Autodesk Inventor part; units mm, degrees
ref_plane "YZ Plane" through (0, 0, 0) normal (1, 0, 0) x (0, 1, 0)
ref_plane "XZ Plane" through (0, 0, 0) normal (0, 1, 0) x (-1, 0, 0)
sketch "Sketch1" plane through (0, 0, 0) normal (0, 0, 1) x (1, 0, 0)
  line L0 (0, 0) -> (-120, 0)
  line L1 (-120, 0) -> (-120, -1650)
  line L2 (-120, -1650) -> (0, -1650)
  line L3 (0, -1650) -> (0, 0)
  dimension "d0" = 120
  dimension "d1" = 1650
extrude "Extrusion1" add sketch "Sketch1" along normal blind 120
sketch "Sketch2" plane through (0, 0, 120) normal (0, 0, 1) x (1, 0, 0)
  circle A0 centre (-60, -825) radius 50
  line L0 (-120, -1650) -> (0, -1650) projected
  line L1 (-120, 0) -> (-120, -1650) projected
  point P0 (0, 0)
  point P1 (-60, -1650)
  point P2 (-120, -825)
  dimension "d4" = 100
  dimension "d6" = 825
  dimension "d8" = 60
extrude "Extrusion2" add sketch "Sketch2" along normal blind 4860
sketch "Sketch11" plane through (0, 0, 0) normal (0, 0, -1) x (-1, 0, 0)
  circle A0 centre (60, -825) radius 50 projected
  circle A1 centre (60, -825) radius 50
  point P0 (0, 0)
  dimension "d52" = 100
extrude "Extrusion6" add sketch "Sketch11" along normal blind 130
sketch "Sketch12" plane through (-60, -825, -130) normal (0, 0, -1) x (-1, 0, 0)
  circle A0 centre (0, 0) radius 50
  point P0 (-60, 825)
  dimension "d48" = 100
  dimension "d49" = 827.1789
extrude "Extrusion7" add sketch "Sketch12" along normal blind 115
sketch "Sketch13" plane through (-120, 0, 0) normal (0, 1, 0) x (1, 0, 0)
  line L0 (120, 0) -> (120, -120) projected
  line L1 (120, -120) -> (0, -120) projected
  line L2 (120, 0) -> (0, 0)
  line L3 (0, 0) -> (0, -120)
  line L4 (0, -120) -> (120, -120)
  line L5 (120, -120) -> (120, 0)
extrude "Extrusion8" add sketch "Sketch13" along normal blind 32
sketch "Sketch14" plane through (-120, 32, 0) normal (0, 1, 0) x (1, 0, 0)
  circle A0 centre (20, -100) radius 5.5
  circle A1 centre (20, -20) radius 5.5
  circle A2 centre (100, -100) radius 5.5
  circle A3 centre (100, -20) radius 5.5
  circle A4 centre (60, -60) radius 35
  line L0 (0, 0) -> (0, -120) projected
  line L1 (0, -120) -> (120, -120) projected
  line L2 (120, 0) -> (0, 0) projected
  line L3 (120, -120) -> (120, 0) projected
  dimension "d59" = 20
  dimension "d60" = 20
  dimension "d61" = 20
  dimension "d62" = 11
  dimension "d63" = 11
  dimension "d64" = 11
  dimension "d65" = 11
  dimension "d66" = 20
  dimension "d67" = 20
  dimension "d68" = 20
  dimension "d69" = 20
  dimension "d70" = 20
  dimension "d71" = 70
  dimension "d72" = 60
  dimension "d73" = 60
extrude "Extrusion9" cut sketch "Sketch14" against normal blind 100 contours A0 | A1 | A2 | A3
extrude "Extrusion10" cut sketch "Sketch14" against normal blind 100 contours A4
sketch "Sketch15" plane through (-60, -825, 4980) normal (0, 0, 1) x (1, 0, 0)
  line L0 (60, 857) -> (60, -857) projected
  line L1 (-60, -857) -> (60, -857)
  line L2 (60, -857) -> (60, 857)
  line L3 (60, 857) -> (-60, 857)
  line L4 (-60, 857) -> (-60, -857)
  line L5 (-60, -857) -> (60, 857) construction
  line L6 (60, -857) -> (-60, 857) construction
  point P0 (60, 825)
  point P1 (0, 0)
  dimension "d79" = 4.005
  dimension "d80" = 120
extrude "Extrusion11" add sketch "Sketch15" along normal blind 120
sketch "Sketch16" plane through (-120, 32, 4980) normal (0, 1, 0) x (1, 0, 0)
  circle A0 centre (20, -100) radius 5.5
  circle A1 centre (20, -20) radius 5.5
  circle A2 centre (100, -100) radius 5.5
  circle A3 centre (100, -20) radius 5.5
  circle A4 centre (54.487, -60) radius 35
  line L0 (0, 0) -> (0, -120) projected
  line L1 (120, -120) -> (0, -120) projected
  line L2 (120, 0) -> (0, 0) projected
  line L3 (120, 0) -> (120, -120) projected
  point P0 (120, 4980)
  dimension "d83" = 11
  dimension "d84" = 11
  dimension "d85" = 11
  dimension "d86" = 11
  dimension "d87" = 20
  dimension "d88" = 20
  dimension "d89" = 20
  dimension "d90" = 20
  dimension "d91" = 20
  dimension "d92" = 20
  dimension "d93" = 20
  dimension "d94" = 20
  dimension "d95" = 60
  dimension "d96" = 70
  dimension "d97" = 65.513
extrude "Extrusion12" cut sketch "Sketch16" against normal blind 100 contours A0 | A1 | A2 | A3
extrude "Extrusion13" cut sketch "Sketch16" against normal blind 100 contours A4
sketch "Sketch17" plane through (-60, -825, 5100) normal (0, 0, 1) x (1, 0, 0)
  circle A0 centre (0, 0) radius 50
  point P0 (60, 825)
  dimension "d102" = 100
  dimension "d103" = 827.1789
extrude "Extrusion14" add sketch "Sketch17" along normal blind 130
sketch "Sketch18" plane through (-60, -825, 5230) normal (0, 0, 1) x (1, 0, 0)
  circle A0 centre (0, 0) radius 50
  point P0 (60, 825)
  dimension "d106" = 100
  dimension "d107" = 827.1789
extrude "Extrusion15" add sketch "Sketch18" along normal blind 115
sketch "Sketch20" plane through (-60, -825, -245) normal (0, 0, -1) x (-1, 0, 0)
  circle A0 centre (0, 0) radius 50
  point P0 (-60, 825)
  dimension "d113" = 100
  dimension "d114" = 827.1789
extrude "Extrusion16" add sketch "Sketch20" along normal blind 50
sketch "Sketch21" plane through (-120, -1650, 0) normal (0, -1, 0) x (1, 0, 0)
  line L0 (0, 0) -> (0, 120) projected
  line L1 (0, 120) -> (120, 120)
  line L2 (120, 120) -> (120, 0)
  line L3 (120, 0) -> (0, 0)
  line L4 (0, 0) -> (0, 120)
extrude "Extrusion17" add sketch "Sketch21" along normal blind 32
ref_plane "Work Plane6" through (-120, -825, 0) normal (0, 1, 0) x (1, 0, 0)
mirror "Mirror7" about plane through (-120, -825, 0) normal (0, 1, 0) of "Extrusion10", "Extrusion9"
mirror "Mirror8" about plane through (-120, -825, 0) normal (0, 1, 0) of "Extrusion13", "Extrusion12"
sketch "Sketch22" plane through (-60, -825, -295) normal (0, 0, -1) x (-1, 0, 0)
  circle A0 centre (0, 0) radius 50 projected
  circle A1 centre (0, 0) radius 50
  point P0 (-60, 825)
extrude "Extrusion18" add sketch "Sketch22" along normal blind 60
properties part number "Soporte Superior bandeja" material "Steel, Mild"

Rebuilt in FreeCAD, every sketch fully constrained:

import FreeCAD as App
import Part
import Sketcher
Q = App.Units.Quantity

doc = App.newDocument("Part")
body = doc.addObject("PartDesign::Body", "Body")

# Sketch on XY plane
sketch1 = doc.addObject("Sketcher::SketchObject", "Sketch")
body.addObject(sketch1)
sketch1.AttachmentSupport = (doc.XY_Plane, [""])
sketch1.MapMode = "FlatFace"
sketch1.addGeometry([
    Part.LineSegment(App.Vector(0, -1650, 0), App.Vector(0, 0, 0)),
    Part.LineSegment(App.Vector(0, 0, 0), App.Vector(-120, 0, 0)),
    Part.LineSegment(App.Vector(-120, 0, 0), App.Vector(-120, -1650, 0)),
    Part.LineSegment(App.Vector(-120, -1650, 0), App.Vector(0, -1650, 0)),
], False)
sketch1.addConstraint([
    Sketcher.Constraint("Coincident", 0, 2, 1, 1),
    Sketcher.Constraint("Coincident", 1, 2, 2, 1),
    Sketcher.Constraint("Coincident", 2, 2, 3, 1),
    Sketcher.Constraint("Coincident", 3, 2, 0, 1),
    Sketcher.Constraint("Vertical", 0),
    Sketcher.Constraint("Horizontal", 1),
    Sketcher.Constraint("Vertical", 2),
    Sketcher.Constraint("Horizontal", 3),
    Sketcher.Constraint("Coincident", 0, 2, -1, 1),
    Sketcher.Constraint("DistanceX", 1, 2, 1, 1, Q("120 mm")),
    Sketcher.Constraint("DistanceY", 0, 1, 0, 2, Q("1650 mm")),
])
pad1 = doc.addObject("PartDesign::Pad", "Pad")
body.addObject(pad1)
pad1.Profile = sketch1
pad1.Length = 120

# Sketch on XY plane
sketch2 = doc.addObject("Sketcher::SketchObject", "Sketch001")
body.addObject(sketch2)
sketch2.AttachmentSupport = (doc.XY_Plane, [""])
sketch2.MapMode = "FlatFace"
sketch2.AttachmentOffset = App.Placement(App.Vector(0, 0, 120), App.Rotation())
sketch2.addGeometry(Part.Circle(App.Vector(-60, -825, 0), App.Vector(0, 0, 1), 50), False)
sketch2.addConstraint([
    Sketcher.Constraint("Diameter", 0, Q("100 mm")),
    Sketcher.Constraint("DistanceX", 0, 3, -1, 1, Q("60 mm")),
    Sketcher.Constraint("DistanceY", 0, 3, -1, 1, Q("825 mm")),
])
pad2 = doc.addObject("PartDesign::Pad", "Pad001")
body.addObject(pad2)
pad2.Profile = sketch2
pad2.Length = 4860

# Sketch on XY plane
sketch3 = doc.addObject("Sketcher::SketchObject", "Sketch002")
body.addObject(sketch3)
sketch3.AttachmentSupport = (doc.XY_Plane, [""])
sketch3.MapMode = "FlatFace"
sketch3.addGeometry(Part.Circle(App.Vector(-60, -825, 0), App.Vector(0, 0, 1), 50), False)
sketch3.addConstraint([
    Sketcher.Constraint("Diameter", 0, Q("100 mm")),
    Sketcher.Constraint("DistanceX", 0, 3, -1, 1, Q("60 mm")),
    Sketcher.Constraint("DistanceY", 0, 3, -1, 1, Q("825 mm")),
])
pad3 = doc.addObject("PartDesign::Pad", "Pad002")
body.addObject(pad3)
pad3.Profile = sketch3
pad3.Length = 130
pad3.Reversed = True

# Sketch on XY plane
sketch4 = doc.addObject("Sketcher::SketchObject", "Sketch003")
body.addObject(sketch4)
sketch4.AttachmentSupport = (doc.XY_Plane, [""])
sketch4.MapMode = "FlatFace"
sketch4.AttachmentOffset = App.Placement(App.Vector(0, 0, -130), App.Rotation())
sketch4.addGeometry(Part.Circle(App.Vector(-60, -825, 0), App.Vector(0, 0, 1), 50), False)
sketch4.addConstraint([
    Sketcher.Constraint("Diameter", 0, Q("100 mm")),
    Sketcher.Constraint("DistanceX", 0, 3, -1, 1, Q("60 mm")),
    Sketcher.Constraint("DistanceY", 0, 3, -1, 1, Q("825 mm")),
])
pad4 = doc.addObject("PartDesign::Pad", "Pad003")
body.addObject(pad4)
pad4.Profile = sketch4
pad4.Length = 115
pad4.Reversed = True

# Sketch on XZ plane
sketch5 = doc.addObject("Sketcher::SketchObject", "Sketch004")
body.addObject(sketch5)
sketch5.AttachmentSupport = (doc.XZ_Plane, [""])
sketch5.MapMode = "FlatFace"
sketch5.addGeometry([
    Part.LineSegment(App.Vector(0, 120, 0), App.Vector(0, 0, 0)),
    Part.LineSegment(App.Vector(0, 0, 0), App.Vector(-120, 0, 0)),
    Part.LineSegment(App.Vector(-120, 0, 0), App.Vector(-120, 120, 0)),
    Part.LineSegment(App.Vector(-120, 120, 0), App.Vector(0, 120, 0)),
], False)
sketch5.addConstraint([
    Sketcher.Constraint("Coincident", 0, 2, 1, 1),
    Sketcher.Constraint("Coincident", 1, 2, 2, 1),
    Sketcher.Constraint("Coincident", 2, 2, 3, 1),
    Sketcher.Constraint("Coincident", 3, 2, 0, 1),
    Sketcher.Constraint("Vertical", 0),
    Sketcher.Constraint("Horizontal", 1),
    Sketcher.Constraint("Vertical", 2),
    Sketcher.Constraint("Horizontal", 3),
    Sketcher.Constraint("Coincident", 0, 2, -1, 1),
    Sketcher.Constraint("Equal", 3, 0),
    Sketcher.Constraint("DistanceX", 1, 2, 1, 1, Q("120 mm")),
])
pad5 = doc.addObject("PartDesign::Pad", "Pad004")
body.addObject(pad5)
pad5.Profile = sketch5
pad5.Length = 32
pad5.Reversed = True

# Sketch on XZ plane
sketch6 = doc.addObject("Sketcher::SketchObject", "Sketch005")
body.addObject(sketch6)
sketch6.AttachmentSupport = (doc.XZ_Plane, [""])
sketch6.MapMode = "FlatFace"
sketch6.AttachmentOffset = App.Placement(App.Vector(0, 0, -32), App.Rotation())
sketch6.addGeometry([
    Part.Circle(App.Vector(-100, 100, 0), App.Vector(0, 0, 1), 6),
    Part.Circle(App.Vector(-100, 20, 0), App.Vector(0, 0, 1), 6),
    Part.Circle(App.Vector(-20, 100, 0), App.Vector(0, 0, 1), 6),
    Part.Circle(App.Vector(-20, 20, 0), App.Vector(0, 0, 1), 6),
], False)
sketch6.addConstraint([
    Sketcher.Constraint("Equal", 0, 1),
    Sketcher.Constraint("Equal", 1, 2),
    Sketcher.Constraint("Equal", 2, 3),
    Sketcher.Constraint("Horizontal", 0, 3, 2, 3),
    Sketcher.Constraint("Horizontal", 1, 3, 3, 3),
    Sketcher.Constraint("Vertical", 0, 3, 1, 3),
    Sketcher.Constraint("Vertical", 2, 3, 3, 3),
    Sketcher.Constraint("Diameter", 0, Q("11 mm")),
    Sketcher.Constraint("DistanceY", -1, 1, 1, 3, Q("20 mm")),
    Sketcher.Constraint("DistanceX", 2, 3, -1, 1, Q("20 mm")),
    Sketcher.Constraint("DistanceX", 0, 3, -1, 1, Q("100 mm")),
    Sketcher.Constraint("DistanceY", -1, 1, 0, 3, Q("100 mm")),
])
pocket1 = doc.addObject("PartDesign::Pocket", "Pocket")
body.addObject(pocket1)
pocket1.Profile = sketch6
pocket1.Length = 100
pocket1.Reversed = True

# Sketch on XZ plane
sketch7 = doc.addObject("Sketcher::SketchObject", "Sketch006")
body.addObject(sketch7)
sketch7.AttachmentSupport = (doc.XZ_Plane, [""])
sketch7.MapMode = "FlatFace"
sketch7.AttachmentOffset = App.Placement(App.Vector(0, 0, -32), App.Rotation())
sketch7.addGeometry(Part.Circle(App.Vector(-60, 60, 0), App.Vector(0, 0, 1), 35), False)
sketch7.addConstraint([
    Sketcher.Constraint("Diameter", 0, Q("70 mm")),
    Sketcher.Constraint("DistanceX", 0, 3, -1, 1, Q("60 mm")),
    Sketcher.Constraint("DistanceY", -1, 1, 0, 3, Q("60 mm")),
])
pocket2 = doc.addObject("PartDesign::Pocket", "Pocket001")
body.addObject(pocket2)
pocket2.Profile = sketch7
pocket2.Length = 100
pocket2.Reversed = True

# Sketch on XY plane
sketch8 = doc.addObject("Sketcher::SketchObject", "Sketch007")
body.addObject(sketch8)
sketch8.AttachmentSupport = (doc.XY_Plane, [""])
sketch8.MapMode = "FlatFace"
sketch8.AttachmentOffset = App.Placement(App.Vector(0, 0, 4980), App.Rotation())
sketch8.addGeometry([
    Part.LineSegment(App.Vector(0, -1682, 0), App.Vector(0, 32, 0)),
    Part.LineSegment(App.Vector(0, 32, 0), App.Vector(-120, 32, 0)),
    Part.LineSegment(App.Vector(-120, 32, 0), App.Vector(-120, -1682, 0)),
    Part.LineSegment(App.Vector(-120, -1682, 0), App.Vector(0, -1682, 0)),
], False)
sketch8.addConstraint([
    Sketcher.Constraint("Coincident", 0, 2, 1, 1),
    Sketcher.Constraint("Coincident", 1, 2, 2, 1),
    Sketcher.Constraint("Coincident", 2, 2, 3, 1),
    Sketcher.Constraint("Coincident", 3, 2, 0, 1),
    Sketcher.Constraint("Vertical", 0),
    Sketcher.Constraint("Horizontal", 1),
    Sketcher.Constraint("Vertical", 2),
    Sketcher.Constraint("Horizontal", 3),
    Sketcher.Constraint("PointOnObject", 0, 2, -2),
    Sketcher.Constraint("DistanceX", 1, 2, 1, 1, Q("120 mm")),
    Sketcher.Constraint("DistanceY", 0, 1, 0, 2, Q("1714 mm")),
    Sketcher.Constraint("DistanceY", -1, 1, 0, 2, Q("32 mm")),
])
pad6 = doc.addObject("PartDesign::Pad", "Pad005")
body.addObject(pad6)
pad6.Profile = sketch8
pad6.Length = 120

# Sketch on XZ plane
sketch9 = doc.addObject("Sketcher::SketchObject", "Sketch008")
body.addObject(sketch9)
sketch9.AttachmentSupport = (doc.XZ_Plane, [""])
sketch9.MapMode = "FlatFace"
sketch9.AttachmentOffset = App.Placement(App.Vector(0, 0, -32), App.Rotation())
sketch9.addGeometry([
    Part.Circle(App.Vector(-100, 5080, 0), App.Vector(0, 0, 1), 6),
    Part.Circle(App.Vector(-100, 5000, 0), App.Vector(0, 0, 1), 6),
    Part.Circle(App.Vector(-20, 5080, 0), App.Vector(0, 0, 1), 6),
    Part.Circle(App.Vector(-20, 5000, 0), App.Vector(0, 0, 1), 6),
], False)
sketch9.addConstraint([
    Sketcher.Constraint("Equal", 0, 1),
    Sketcher.Constraint("Equal", 1, 2),
    Sketcher.Constraint("Equal", 2, 3),
    Sketcher.Constraint("Horizontal", 0, 3, 2, 3),
    Sketcher.Constraint("Horizontal", 1, 3, 3, 3),
    Sketcher.Constraint("Vertical", 0, 3, 1, 3),
    Sketcher.Constraint("Vertical", 2, 3, 3, 3),
    Sketcher.Constraint("Diameter", 0, Q("11 mm")),
    Sketcher.Constraint("DistanceX", 2, 3, -1, 1, Q("20 mm")),
    Sketcher.Constraint("DistanceX", 0, 3, -1, 1, Q("100 mm")),
    Sketcher.Constraint("DistanceY", -1, 1, 0, 3, Q("5080 mm")),
    Sketcher.Constraint("DistanceY", -1, 1, 1, 3, Q("5000 mm")),
])
pocket3 = doc.addObject("PartDesign::Pocket", "Pocket002")
body.addObject(pocket3)
pocket3.Profile = sketch9
pocket3.Length = 100
pocket3.Reversed = True

# Sketch on XZ plane
sketch10 = doc.addObject("Sketcher::SketchObject", "Sketch009")
body.addObject(sketch10)
sketch10.AttachmentSupport = (doc.XZ_Plane, [""])
sketch10.MapMode = "FlatFace"
sketch10.AttachmentOffset = App.Placement(App.Vector(0, 0, -32), App.Rotation())
sketch10.addGeometry(Part.Circle(App.Vector(-66, 5040, 0), App.Vector(0, 0, 1), 35), False)
sketch10.addConstraint([
    Sketcher.Constraint("Diameter", 0, Q("70 mm")),
    Sketcher.Constraint("DistanceX", 0, 3, -1, 1, Q("65.513 mm")),
    Sketcher.Constraint("DistanceY", -1, 1, 0, 3, Q("5040 mm")),
])
pocket4 = doc.addObject("PartDesign::Pocket", "Pocket003")
body.addObject(pocket4)
pocket4.Profile = sketch10
pocket4.Length = 100
pocket4.Reversed = True

# Sketch on XY plane
sketch11 = doc.addObject("Sketcher::SketchObject", "Sketch010")
body.addObject(sketch11)
sketch11.AttachmentSupport = (doc.XY_Plane, [""])
sketch11.MapMode = "FlatFace"
sketch11.AttachmentOffset = App.Placement(App.Vector(0, 0, 5100), App.Rotation())
sketch11.addGeometry(Part.Circle(App.Vector(-60, -825, 0), App.Vector(0, 0, 1), 50), False)
sketch11.addConstraint([
    Sketcher.Constraint("Diameter", 0, Q("100 mm")),
    Sketcher.Constraint("DistanceX", 0, 3, -1, 1, Q("60 mm")),
    Sketcher.Constraint("DistanceY", 0, 3, -1, 1, Q("825 mm")),
])
pad7 = doc.addObject("PartDesign::Pad", "Pad006")
body.addObject(pad7)
pad7.Profile = sketch11
pad7.Length = 130

# Sketch on XY plane
sketch12 = doc.addObject("Sketcher::SketchObject", "Sketch011")
body.addObject(sketch12)
sketch12.AttachmentSupport = (doc.XY_Plane, [""])
sketch12.MapMode = "FlatFace"
sketch12.AttachmentOffset = App.Placement(App.Vector(0, 0, 5230), App.Rotation())
sketch12.addGeometry(Part.Circle(App.Vector(-60, -825, 0), App.Vector(0, 0, 1), 50), False)
sketch12.addConstraint([
    Sketcher.Constraint("Diameter", 0, Q("100 mm")),
    Sketcher.Constraint("DistanceX", 0, 3, -1, 1, Q("60 mm")),
    Sketcher.Constraint("DistanceY", 0, 3, -1, 1, Q("825 mm")),
])
pad8 = doc.addObject("PartDesign::Pad", "Pad007")
body.addObject(pad8)
pad8.Profile = sketch12
pad8.Length = 115

# Sketch on XY plane
sketch13 = doc.addObject("Sketcher::SketchObject", "Sketch012")
body.addObject(sketch13)
sketch13.AttachmentSupport = (doc.XY_Plane, [""])
sketch13.MapMode = "FlatFace"
sketch13.AttachmentOffset = App.Placement(App.Vector(0, 0, -245), App.Rotation())
sketch13.addGeometry(Part.Circle(App.Vector(-60, -825, 0), App.Vector(0, 0, 1), 50), False)
sketch13.addConstraint([
    Sketcher.Constraint("Diameter", 0, Q("100 mm")),
    Sketcher.Constraint("DistanceX", 0, 3, -1, 1, Q("60 mm")),
    Sketcher.Constraint("DistanceY", 0, 3, -1, 1, Q("825 mm")),
])
pad9 = doc.addObject("PartDesign::Pad", "Pad008")
body.addObject(pad9)
pad9.Profile = sketch13
pad9.Length = 50
pad9.Reversed = True

# Sketch on XZ plane
sketch14 = doc.addObject("Sketcher::SketchObject", "Sketch013")
body.addObject(sketch14)
sketch14.AttachmentSupport = (doc.XZ_Plane, [""])
sketch14.MapMode = "FlatFace"
sketch14.AttachmentOffset = App.Placement(App.Vector(0, 0, 1650), App.Rotation())
sketch14.addGeometry([
    Part.LineSegment(App.Vector(-120, 120, 0), App.Vector(-120, 0, 0)),
    Part.LineSegment(App.Vector(-120, 0, 0), App.Vector(0, 0, 0)),
    Part.LineSegment(App.Vector(0, 0, 0), App.Vector(0, 120, 0)),
    Part.LineSegment(App.Vector(0, 120, 0), App.Vector(-120, 120, 0)),
], False)
sketch14.addConstraint([
    Sketcher.Constraint("Coincident", 0, 2, 1, 1),
    Sketcher.Constraint("Coincident", 1, 2, 2, 1),
    Sketcher.Constraint("Coincident", 2, 2, 3, 1),
    Sketcher.Constraint("Coincident", 3, 2, 0, 1),
    Sketcher.Constraint("Vertical", 0),
    Sketcher.Constraint("Horizontal", 1),
    Sketcher.Constraint("Vertical", 2),
    Sketcher.Constraint("Horizontal", 3),
    Sketcher.Constraint("Coincident", 1, 2, -1, 1),
    Sketcher.Constraint("Equal", 3, 0),
    Sketcher.Constraint("DistanceX", 1, 1, 1, 2, Q("120 mm")),
])
pad10 = doc.addObject("PartDesign::Pad", "Pad009")
body.addObject(pad10)
pad10.Profile = sketch14
pad10.Length = 32
doc.recompute()

datumplane = doc.addObject("PartDesign::Plane", "DatumPlane")
body.addObject(datumplane)
datumplane.AttachmentSupport = (doc.XZ_Plane, [""])
datumplane.MapMode = "FlatFace"
datumplane.AttachmentOffset = App.Placement(App.Vector(0, 0, 825), App.Rotation())
mirrored = doc.addObject("PartDesign::Mirrored", "Mirrored")
body.addObject(mirrored)
mirrored.Originals = [pocket2, pocket1]
mirrored.MirrorPlane = (datumplane, [""])
body.Tip = mirrored
doc.recompute()

datumplane2 = doc.addObject("PartDesign::Plane", "DatumPlane001")
body.addObject(datumplane2)
datumplane2.AttachmentSupport = (doc.XZ_Plane, [""])
datumplane2.MapMode = "FlatFace"
datumplane2.AttachmentOffset = App.Placement(App.Vector(0, 0, 825), App.Rotation())
mirrored2 = doc.addObject("PartDesign::Mirrored", "Mirrored001")
body.addObject(mirrored2)
mirrored2.Originals = [pocket4, pocket3]
mirrored2.MirrorPlane = (datumplane2, [""])
body.Tip = mirrored2

# Sketch on XY plane
sketch15 = doc.addObject("Sketcher::SketchObject", "Sketch014")
body.addObject(sketch15)
sketch15.AttachmentSupport = (doc.XY_Plane, [""])
sketch15.MapMode = "FlatFace"
sketch15.AttachmentOffset = App.Placement(App.Vector(0, 0, -295), App.Rotation())
sketch15.addGeometry(Part.Circle(App.Vector(-60, -825, 0), App.Vector(0, 0, 1), 50), False)
sketch15.addConstraint([
    Sketcher.Constraint("Diameter", 0, Q("100 mm")),
    Sketcher.Constraint("DistanceX", 0, 3, -1, 1, Q("60 mm")),
    Sketcher.Constraint("DistanceY", 0, 3, -1, 1, Q("825 mm")),
])
pad11 = doc.addObject("PartDesign::Pad", "Pad010")
body.addObject(pad11)
pad11.Profile = sketch15
pad11.Length = 60
pad11.Reversed = True

doc.recompute()
